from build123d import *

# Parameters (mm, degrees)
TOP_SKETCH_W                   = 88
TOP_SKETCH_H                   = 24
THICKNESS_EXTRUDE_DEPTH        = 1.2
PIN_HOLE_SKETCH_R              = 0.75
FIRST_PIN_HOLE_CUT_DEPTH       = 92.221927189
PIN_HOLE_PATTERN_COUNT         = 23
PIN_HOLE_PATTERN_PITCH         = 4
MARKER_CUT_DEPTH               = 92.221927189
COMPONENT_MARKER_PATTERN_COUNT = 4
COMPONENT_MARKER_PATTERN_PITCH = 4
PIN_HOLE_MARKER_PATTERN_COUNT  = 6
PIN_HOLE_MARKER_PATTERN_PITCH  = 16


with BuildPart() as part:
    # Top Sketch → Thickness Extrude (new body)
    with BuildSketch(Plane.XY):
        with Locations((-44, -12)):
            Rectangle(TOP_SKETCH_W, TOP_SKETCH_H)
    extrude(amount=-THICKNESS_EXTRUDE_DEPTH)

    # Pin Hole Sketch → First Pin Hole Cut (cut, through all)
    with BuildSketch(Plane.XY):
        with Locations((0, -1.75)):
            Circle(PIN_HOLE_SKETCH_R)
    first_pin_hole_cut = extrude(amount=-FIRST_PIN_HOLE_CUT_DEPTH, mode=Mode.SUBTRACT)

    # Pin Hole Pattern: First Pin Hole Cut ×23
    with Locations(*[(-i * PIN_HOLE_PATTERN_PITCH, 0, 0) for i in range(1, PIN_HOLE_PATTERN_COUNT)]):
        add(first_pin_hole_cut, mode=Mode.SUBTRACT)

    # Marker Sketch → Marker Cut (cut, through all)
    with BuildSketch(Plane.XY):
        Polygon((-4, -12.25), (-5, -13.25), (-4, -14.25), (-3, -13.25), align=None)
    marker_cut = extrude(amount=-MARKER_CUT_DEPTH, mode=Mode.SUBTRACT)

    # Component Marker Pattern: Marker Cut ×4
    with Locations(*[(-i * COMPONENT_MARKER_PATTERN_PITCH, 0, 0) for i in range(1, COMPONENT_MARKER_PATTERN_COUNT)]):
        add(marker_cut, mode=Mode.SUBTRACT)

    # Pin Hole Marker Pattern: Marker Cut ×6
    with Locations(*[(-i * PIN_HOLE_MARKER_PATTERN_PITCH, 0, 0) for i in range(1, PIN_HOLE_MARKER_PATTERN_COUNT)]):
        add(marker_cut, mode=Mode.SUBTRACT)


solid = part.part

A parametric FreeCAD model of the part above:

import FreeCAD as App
import Part
import Sketcher
from FreeCAD import Vector

doc = App.newDocument("Part")
body = doc.addObject("PartDesign::Body", "Body")

sketch1 = body.newObject("Sketcher::SketchObject", "Sketch")
sketch1.AttachmentSupport = (doc.getObject("XY_Plane"), [""])
sketch1.MapMode = "FlatFace"
sketch1.addGeometry([
    Part.LineSegment(Vector(-88, 0, 0), Vector(-88, -24, 0)),
    Part.LineSegment(Vector(-88, -24, 0), Vector(0, -24, 0)),
    Part.LineSegment(Vector(0, -24, 0), Vector(0, 0, 0)),
    Part.LineSegment(Vector(0, 0, 0), Vector(-88, 0, 0)),
], False)
sketch1.addConstraint([
    Sketcher.Constraint("Coincident", 0, 2, 1, 1),
    Sketcher.Constraint("Coincident", 1, 2, 2, 1),
    Sketcher.Constraint("Coincident", 2, 2, 3, 1),
    Sketcher.Constraint("Coincident", 3, 2, 0, 1),
    Sketcher.Constraint("Vertical", 0),
    Sketcher.Constraint("Horizontal", 1),
    Sketcher.Constraint("Vertical", 2),
    Sketcher.Constraint("Horizontal", 3),
    Sketcher.Constraint("Coincident", 2, 2, -1, 1),
    Sketcher.Constraint("DistanceX", 1, 1, 1, 2, 88.0),
    Sketcher.Constraint("DistanceY", 0, 2, 0, 1, 24.0),
])
pad1 = body.newObject("PartDesign::Pad", "Pad")
pad1.Profile = sketch1
pad1.Length = 1.2
pad1.Reversed = True

sketch2 = body.newObject("Sketcher::SketchObject", "Sketch001")
sketch2.AttachmentSupport = (doc.getObject("XY_Plane"), [""])
sketch2.MapMode = "FlatFace"
sketch2.addGeometry(Part.Circle(Vector(0, -1.8, 0), Vector(0, 0, 1), 0.8), False)
sketch2.addConstraint([
    Sketcher.Constraint("PointOnObject", 0, 3, -2),
    Sketcher.Constraint("Diameter", 0, 1.5),
    Sketcher.Constraint("DistanceY", 0, 3, -1, 1, 1.75),
])
pocket1 = body.newObject("PartDesign::Pocket", "Pocket")
pocket1.Profile = sketch2
pocket1.Type = "ThroughAll"
doc.recompute()

linearpattern = body.newObject("PartDesign::LinearPattern", "LinearPattern")
linearpattern.Originals = [pocket1]
linearpattern.Direction = (doc.getObject("X_Axis"), [""])
linearpattern.Mode = "offset"
linearpattern.Offset = 4
linearpattern.Occurrences = 23
linearpattern.Reversed = True
body.Tip = linearpattern

sketch3 = body.newObject("Sketcher::SketchObject", "Sketch002")
sketch3.AttachmentSupport = (doc.getObject("XY_Plane"), [""])
sketch3.MapMode = "FlatFace"
sketch3.addGeometry([
    Part.LineSegment(Vector(-4, -12.2, 0), Vector(-5, -13.2, 0)),
    Part.LineSegment(Vector(-5, -13.2, 0), Vector(-4, -14.2, 0)),
    Part.LineSegment(Vector(-4, -14.2, 0), Vector(-3, -13.2, 0)),
    Part.LineSegment(Vector(-3, -13.2, 0), Vector(-4, -12.2, 0)),
], False)
sketch3.addConstraint([
    Sketcher.Constraint("Coincident", 0, 2, 1, 1),
    Sketcher.Constraint("Coincident", 1, 2, 2, 1),
    Sketcher.Constraint("Coincident", 2, 2, 3, 1),
    Sketcher.Constraint("Coincident", 3, 2, 0, 1),
    Sketcher.Constraint("Perpendicular", 0, 1),
    Sketcher.Constraint("Perpendicular", 1, 2),
    Sketcher.Constraint("Perpendicular", 2, 3),
    Sketcher.Constraint("Horizontal", 0, 2, 2, 2),
    Sketcher.Constraint("Vertical", 1, 2, 3, 2),
    Sketcher.Constraint("DistanceX", 0, 2, -1, 1, 5.0),
    Sketcher.Constraint("DistanceX", 1, 2, -1, 1, 4.0),
    Sketcher.Constraint("DistanceY", 0, 2, -1, 1, 13.25),
])
pocket2 = body.newObject("PartDesign::Pocket", "Pocket001")
pocket2.Profile = sketch3
pocket2.Type = "ThroughAll"
doc.recompute()

linearpattern2 = body.newObject("PartDesign::LinearPattern", "LinearPattern001")
linearpattern2.Originals = [pocket2]
linearpattern2.Direction = (doc.getObject("X_Axis"), [""])
linearpattern2.Mode = "offset"
linearpattern2.Offset = 4
linearpattern2.Occurrences = 4
linearpattern2.Reversed = True
body.Tip = linearpattern2
doc.recompute()

linearpattern3 = body.newObject("PartDesign::LinearPattern", "LinearPattern002")
linearpattern3.Originals = [pocket2]
linearpattern3.Direction = (doc.getObject("X_Axis"), [""])
linearpattern3.Mode = "offset"
linearpattern3.Offset = 16
linearpattern3.Occurrences = 6
linearpattern3.Reversed = True
body.Tip = linearpattern3

doc.recompute()
